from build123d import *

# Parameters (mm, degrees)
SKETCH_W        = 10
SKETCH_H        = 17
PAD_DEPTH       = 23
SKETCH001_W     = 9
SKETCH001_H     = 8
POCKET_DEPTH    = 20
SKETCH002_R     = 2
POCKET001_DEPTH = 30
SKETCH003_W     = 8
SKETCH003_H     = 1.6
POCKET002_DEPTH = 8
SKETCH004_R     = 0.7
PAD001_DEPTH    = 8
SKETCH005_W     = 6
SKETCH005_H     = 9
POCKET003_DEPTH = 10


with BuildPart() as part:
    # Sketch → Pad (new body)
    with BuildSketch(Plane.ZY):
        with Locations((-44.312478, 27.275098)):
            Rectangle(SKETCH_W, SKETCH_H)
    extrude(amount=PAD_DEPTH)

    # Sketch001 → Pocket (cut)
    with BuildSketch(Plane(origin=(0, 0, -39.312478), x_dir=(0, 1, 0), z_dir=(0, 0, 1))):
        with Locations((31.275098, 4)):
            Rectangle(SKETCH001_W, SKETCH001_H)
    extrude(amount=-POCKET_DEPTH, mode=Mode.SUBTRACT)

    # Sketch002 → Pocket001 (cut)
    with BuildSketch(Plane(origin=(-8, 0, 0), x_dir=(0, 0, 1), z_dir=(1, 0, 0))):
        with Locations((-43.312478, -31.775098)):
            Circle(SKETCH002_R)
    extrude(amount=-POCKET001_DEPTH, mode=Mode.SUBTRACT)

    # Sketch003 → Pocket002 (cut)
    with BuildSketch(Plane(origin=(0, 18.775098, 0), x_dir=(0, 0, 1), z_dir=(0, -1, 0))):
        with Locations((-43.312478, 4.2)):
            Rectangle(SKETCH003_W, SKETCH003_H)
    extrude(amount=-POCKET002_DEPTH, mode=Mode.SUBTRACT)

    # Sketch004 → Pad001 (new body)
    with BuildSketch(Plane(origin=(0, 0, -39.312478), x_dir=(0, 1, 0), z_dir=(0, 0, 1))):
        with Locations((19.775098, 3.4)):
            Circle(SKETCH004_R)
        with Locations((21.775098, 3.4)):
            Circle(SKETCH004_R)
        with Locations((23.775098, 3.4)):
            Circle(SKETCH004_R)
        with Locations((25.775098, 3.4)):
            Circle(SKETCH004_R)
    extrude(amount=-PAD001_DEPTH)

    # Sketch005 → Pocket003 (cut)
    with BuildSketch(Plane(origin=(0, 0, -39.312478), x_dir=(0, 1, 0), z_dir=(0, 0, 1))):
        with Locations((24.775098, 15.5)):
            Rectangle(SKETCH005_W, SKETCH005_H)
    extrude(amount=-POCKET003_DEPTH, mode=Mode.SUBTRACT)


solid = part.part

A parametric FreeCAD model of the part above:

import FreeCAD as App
import Part
import Sketcher
from FreeCAD import Vector
Q = App.Units.Quantity

doc = App.newDocument("Part")
body = doc.addObject("PartDesign::Body", "Body")

# Sketch on YZ plane
sketch1 = doc.addObject("Sketcher::SketchObject", "Sketch")
body.addObject(sketch1)
sketch1.AttachmentSupport = (doc.YZ_Plane, [""])
sketch1.MapMode = "FlatFace"
sketch1.addGeometry([
    Part.LineSegment(Vector(36, -49, 0), Vector(19, -49, 0)),
    Part.LineSegment(Vector(19, -49, 0), Vector(19, -39, 0)),
    Part.LineSegment(Vector(19, -39, 0), Vector(36, -39, 0)),
    Part.LineSegment(Vector(36, -39, 0), Vector(36, -49, 0)),
], False)
sketch1.addConstraint([
    Sketcher.Constraint("Coincident", 0, 2, 1, 1),
    Sketcher.Constraint("Coincident", 1, 2, 2, 1),
    Sketcher.Constraint("Coincident", 2, 2, 3, 1),
    Sketcher.Constraint("Coincident", 3, 2, 0, 1),
    Sketcher.Constraint("Horizontal", 0),
    Sketcher.Constraint("Vertical", 1),
    Sketcher.Constraint("Horizontal", 2),
    Sketcher.Constraint("Vertical", 3),
    Sketcher.Constraint("DistanceX", 0, 2, 0, 1, Q("17 mm")),
    Sketcher.Constraint("DistanceY", 1, 1, 1, 2, Q("10 mm")),
    Sketcher.Constraint("DistanceX", -1, 1, 0, 2, Q("18.775098 mm")),
    Sketcher.Constraint("DistanceY", 0, 2, -1, 1, Q("49.312478 mm")),
])
pad1 = doc.addObject("PartDesign::Pad", "Pad")
body.addObject(pad1)
pad1.Profile = sketch1
pad1.Length = 23
pad1.Reversed = True

# Sketch on XY plane
sketch2 = doc.addObject("Sketcher::SketchObject", "Sketch001")
body.addObject(sketch2)
sketch2.AttachmentSupport = (doc.XY_Plane, [""])
sketch2.MapMode = "FlatFace"
sketch2.AttachmentOffset = App.Placement(Vector(0, 0, -39.312478), App.Rotation())
sketch2.addGeometry([
    Part.LineSegment(Vector(-8, 27, 0), Vector(0, 27, 0)),
    Part.LineSegment(Vector(0, 27, 0), Vector(0, 36, 0)),
    Part.LineSegment(Vector(0, 36, 0), Vector(-8, 36, 0)),
    Part.LineSegment(Vector(-8, 36, 0), Vector(-8, 27, 0)),
], False)
sketch2.addConstraint([
    Sketcher.Constraint("Coincident", 0, 2, 1, 1),
    Sketcher.Constraint("Coincident", 1, 2, 2, 1),
    Sketcher.Constraint("Coincident", 2, 2, 3, 1),
    Sketcher.Constraint("Coincident", 3, 2, 0, 1),
    Sketcher.Constraint("Horizontal", 0),
    Sketcher.Constraint("Vertical", 1),
    Sketcher.Constraint("Horizontal", 2),
    Sketcher.Constraint("Vertical", 3),
    Sketcher.Constraint("PointOnObject", 0, 2, -2),
    Sketcher.Constraint("DistanceX", 0, 1, 0, 2, Q("8 mm")),
    Sketcher.Constraint("DistanceY", 1, 1, 1, 2, Q("9 mm")),
    Sketcher.Constraint("DistanceY", -1, 1, 0, 2, Q("26.775098 mm")),
])
pocket1 = doc.addObject("PartDesign::Pocket", "Pocket")
body.addObject(pocket1)
pocket1.Profile = sketch2
pocket1.Length = 20

# Sketch on YZ plane
sketch3 = doc.addObject("Sketcher::SketchObject", "Sketch002")
body.addObject(sketch3)
sketch3.AttachmentSupport = (doc.YZ_Plane, [""])
sketch3.MapMode = "FlatFace"
sketch3.AttachmentOffset = App.Placement(Vector(0, 0, -8), App.Rotation())
sketch3.addGeometry(Part.Circle(Vector(31.8, -43.3, 0), Vector(0, 0, 1), 2), False)
sketch3.addConstraint([
    Sketcher.Constraint("Diameter", 0, Q("4 mm")),
    Sketcher.Constraint("DistanceX", -1, 1, 0, 3, Q("31.775098 mm")),
    Sketcher.Constraint("DistanceY", 0, 3, -1, 1, Q("43.312478 mm")),
])
pocket2 = doc.addObject("PartDesign::Pocket", "Pocket001")
body.addObject(pocket2)
pocket2.Profile = sketch3
pocket2.Length = 30

# Sketch on XZ plane
sketch4 = doc.addObject("Sketcher::SketchObject", "Sketch003")
body.addObject(sketch4)
sketch4.AttachmentSupport = (doc.XZ_Plane, [""])
sketch4.MapMode = "FlatFace"
sketch4.AttachmentOffset = App.Placement(Vector(0, 0, -18.775098), App.Rotation())
sketch4.addGeometry([
    Part.LineSegment(Vector(-5, -47.3, 0), Vector(-3.4, -47.3, 0)),
    Part.LineSegment(Vector(-3.4, -47.3, 0), Vector(-3.4, -39.3, 0)),
    Part.LineSegment(Vector(-3.4, -39.3, 0), Vector(-5, -39.3, 0)),
    Part.LineSegment(Vector(-5, -39.3, 0), Vector(-5, -47.3, 0)),
], False)
sketch4.addConstraint([
    Sketcher.Constraint("Coincident", 0, 2, 1, 1),
    Sketcher.Constraint("Coincident", 1, 2, 2, 1),
    Sketcher.Constraint("Coincident", 2, 2, 3, 1),
    Sketcher.Constraint("Coincident", 3, 2, 0, 1),
    Sketcher.Constraint("Horizontal", 0),
    Sketcher.Constraint("Vertical", 1),
    Sketcher.Constraint("Horizontal", 2),
    Sketcher.Constraint("Vertical", 3),
    Sketcher.Constraint("DistanceY", 1, 1, 1, 2, Q("8 mm")),
    Sketcher.Constraint("DistanceX", 0, 1, 0, 2, Q("1.6 mm")),
    Sketcher.Constraint("DistanceX", 2, 2, -1, 1, Q("5 mm")),
    Sketcher.Constraint("DistanceY", 0, 2, -1, 1, Q("47.312478 mm")),
])
pocket3 = doc.addObject("PartDesign::Pocket", "Pocket002")
body.addObject(pocket3)
pocket3.Profile = sketch4
pocket3.Length = 8

# Sketch on XY plane
sketch5 = doc.addObject("Sketcher::SketchObject", "Sketch004")
body.addObject(sketch5)
sketch5.AttachmentSupport = (doc.XY_Plane, [""])
sketch5.MapMode = "FlatFace"
sketch5.AttachmentOffset = App.Placement(Vector(0, 0, -39.312478), App.Rotation())
sketch5.addGeometry([
    Part.Circle(Vector(-3.4, 19.8, 0), Vector(0, 0, 1), 0.7),
    Part.Circle(Vector(-3.4, 21.8, 0), Vector(0, 0, 1), 0.7),
    Part.Circle(Vector(-3.4, 23.8, 0), Vector(0, 0, 1), 0.7),
    Part.Circle(Vector(-3.4, 25.8, 0), Vector(0, 0, 1), 0.7),
], False)
sketch5.addConstraint([
    Sketcher.Constraint("Equal", 0, 1),
    Sketcher.Constraint("Equal", 1, 2),
    Sketcher.Constraint("Equal", 2, 3),
    Sketcher.Constraint("Vertical", 0, 3, 1, 3),
    Sketcher.Constraint("Vertical", 1, 3, 2, 3),
    Sketcher.Constraint("Vertical", 2, 3, 3, 3),
    Sketcher.Constraint("Diameter", 0, Q("1.4 mm")),
    Sketcher.Constraint("DistanceY", 0, 3, 1, 3, Q("2 mm")),
    Sketcher.Constraint("DistanceY", 1, 3, 2, 3, Q("2 mm")),
    Sketcher.Constraint("DistanceY", 2, 3, 3, 3, Q("2 mm")),
    Sketcher.Constraint("DistanceX", 0, 3, -1, 1, Q("3.4 mm")),
    Sketcher.Constraint("DistanceY", -1, 1, 0, 3, Q("19.775098 mm")),
])
pad2 = doc.addObject("PartDesign::Pad", "Pad001")
body.addObject(pad2)
pad2.Profile = sketch5
pad2.Length = 8
pad2.Reversed = True

# Sketch on XY plane
sketch6 = doc.addObject("Sketcher::SketchObject", "Sketch005")
body.addObject(sketch6)
sketch6.AttachmentSupport = (doc.XY_Plane, [""])
sketch6.MapMode = "FlatFace"
sketch6.AttachmentOffset = App.Placement(Vector(0, 0, -39.312478), App.Rotation())
sketch6.addGeometry([
    Part.LineSegment(Vector(-20, 22, 0), Vector(-11, 22, 0)),
    Part.LineSegment(Vector(-11, 22, 0), Vector(-11, 28, 0)),
    Part.LineSegment(Vector(-11, 28, 0), Vector(-20, 28, 0)),
    Part.LineSegment(Vector(-20, 28, 0), Vector(-20, 22, 0)),
], False)
sketch6.addConstraint([
    Sketcher.Constraint("Coincident", 0, 2, 1, 1),
    Sketcher.Constraint("Coincident", 1, 2, 2, 1),
    Sketcher.Constraint("Coincident", 2, 2, 3, 1),
    Sketcher.Constraint("Coincident", 3, 2, 0, 1),
    Sketcher.Constraint("Horizontal", 0),
    Sketcher.Constraint("Vertical", 1),
    Sketcher.Constraint("Horizontal", 2),
    Sketcher.Constraint("Vertical", 3),
    Sketcher.Constraint("DistanceX", 0, 1, 0, 2, Q("9 mm")),
    Sketcher.Constraint("DistanceY", 1, 1, 1, 2, Q("6 mm")),
    Sketcher.Constraint("DistanceX", 0, 2, -1, 1, Q("11 mm")),
    Sketcher.Constraint("DistanceY", -1, 1, 0, 2, Q("21.775098 mm")),
])
pocket4 = doc.addObject("PartDesign::Pocket", "Pocket003")
body.addObject(pocket4)
pocket4.Profile = sketch6
pocket4.Length = 10

doc.recompute()
